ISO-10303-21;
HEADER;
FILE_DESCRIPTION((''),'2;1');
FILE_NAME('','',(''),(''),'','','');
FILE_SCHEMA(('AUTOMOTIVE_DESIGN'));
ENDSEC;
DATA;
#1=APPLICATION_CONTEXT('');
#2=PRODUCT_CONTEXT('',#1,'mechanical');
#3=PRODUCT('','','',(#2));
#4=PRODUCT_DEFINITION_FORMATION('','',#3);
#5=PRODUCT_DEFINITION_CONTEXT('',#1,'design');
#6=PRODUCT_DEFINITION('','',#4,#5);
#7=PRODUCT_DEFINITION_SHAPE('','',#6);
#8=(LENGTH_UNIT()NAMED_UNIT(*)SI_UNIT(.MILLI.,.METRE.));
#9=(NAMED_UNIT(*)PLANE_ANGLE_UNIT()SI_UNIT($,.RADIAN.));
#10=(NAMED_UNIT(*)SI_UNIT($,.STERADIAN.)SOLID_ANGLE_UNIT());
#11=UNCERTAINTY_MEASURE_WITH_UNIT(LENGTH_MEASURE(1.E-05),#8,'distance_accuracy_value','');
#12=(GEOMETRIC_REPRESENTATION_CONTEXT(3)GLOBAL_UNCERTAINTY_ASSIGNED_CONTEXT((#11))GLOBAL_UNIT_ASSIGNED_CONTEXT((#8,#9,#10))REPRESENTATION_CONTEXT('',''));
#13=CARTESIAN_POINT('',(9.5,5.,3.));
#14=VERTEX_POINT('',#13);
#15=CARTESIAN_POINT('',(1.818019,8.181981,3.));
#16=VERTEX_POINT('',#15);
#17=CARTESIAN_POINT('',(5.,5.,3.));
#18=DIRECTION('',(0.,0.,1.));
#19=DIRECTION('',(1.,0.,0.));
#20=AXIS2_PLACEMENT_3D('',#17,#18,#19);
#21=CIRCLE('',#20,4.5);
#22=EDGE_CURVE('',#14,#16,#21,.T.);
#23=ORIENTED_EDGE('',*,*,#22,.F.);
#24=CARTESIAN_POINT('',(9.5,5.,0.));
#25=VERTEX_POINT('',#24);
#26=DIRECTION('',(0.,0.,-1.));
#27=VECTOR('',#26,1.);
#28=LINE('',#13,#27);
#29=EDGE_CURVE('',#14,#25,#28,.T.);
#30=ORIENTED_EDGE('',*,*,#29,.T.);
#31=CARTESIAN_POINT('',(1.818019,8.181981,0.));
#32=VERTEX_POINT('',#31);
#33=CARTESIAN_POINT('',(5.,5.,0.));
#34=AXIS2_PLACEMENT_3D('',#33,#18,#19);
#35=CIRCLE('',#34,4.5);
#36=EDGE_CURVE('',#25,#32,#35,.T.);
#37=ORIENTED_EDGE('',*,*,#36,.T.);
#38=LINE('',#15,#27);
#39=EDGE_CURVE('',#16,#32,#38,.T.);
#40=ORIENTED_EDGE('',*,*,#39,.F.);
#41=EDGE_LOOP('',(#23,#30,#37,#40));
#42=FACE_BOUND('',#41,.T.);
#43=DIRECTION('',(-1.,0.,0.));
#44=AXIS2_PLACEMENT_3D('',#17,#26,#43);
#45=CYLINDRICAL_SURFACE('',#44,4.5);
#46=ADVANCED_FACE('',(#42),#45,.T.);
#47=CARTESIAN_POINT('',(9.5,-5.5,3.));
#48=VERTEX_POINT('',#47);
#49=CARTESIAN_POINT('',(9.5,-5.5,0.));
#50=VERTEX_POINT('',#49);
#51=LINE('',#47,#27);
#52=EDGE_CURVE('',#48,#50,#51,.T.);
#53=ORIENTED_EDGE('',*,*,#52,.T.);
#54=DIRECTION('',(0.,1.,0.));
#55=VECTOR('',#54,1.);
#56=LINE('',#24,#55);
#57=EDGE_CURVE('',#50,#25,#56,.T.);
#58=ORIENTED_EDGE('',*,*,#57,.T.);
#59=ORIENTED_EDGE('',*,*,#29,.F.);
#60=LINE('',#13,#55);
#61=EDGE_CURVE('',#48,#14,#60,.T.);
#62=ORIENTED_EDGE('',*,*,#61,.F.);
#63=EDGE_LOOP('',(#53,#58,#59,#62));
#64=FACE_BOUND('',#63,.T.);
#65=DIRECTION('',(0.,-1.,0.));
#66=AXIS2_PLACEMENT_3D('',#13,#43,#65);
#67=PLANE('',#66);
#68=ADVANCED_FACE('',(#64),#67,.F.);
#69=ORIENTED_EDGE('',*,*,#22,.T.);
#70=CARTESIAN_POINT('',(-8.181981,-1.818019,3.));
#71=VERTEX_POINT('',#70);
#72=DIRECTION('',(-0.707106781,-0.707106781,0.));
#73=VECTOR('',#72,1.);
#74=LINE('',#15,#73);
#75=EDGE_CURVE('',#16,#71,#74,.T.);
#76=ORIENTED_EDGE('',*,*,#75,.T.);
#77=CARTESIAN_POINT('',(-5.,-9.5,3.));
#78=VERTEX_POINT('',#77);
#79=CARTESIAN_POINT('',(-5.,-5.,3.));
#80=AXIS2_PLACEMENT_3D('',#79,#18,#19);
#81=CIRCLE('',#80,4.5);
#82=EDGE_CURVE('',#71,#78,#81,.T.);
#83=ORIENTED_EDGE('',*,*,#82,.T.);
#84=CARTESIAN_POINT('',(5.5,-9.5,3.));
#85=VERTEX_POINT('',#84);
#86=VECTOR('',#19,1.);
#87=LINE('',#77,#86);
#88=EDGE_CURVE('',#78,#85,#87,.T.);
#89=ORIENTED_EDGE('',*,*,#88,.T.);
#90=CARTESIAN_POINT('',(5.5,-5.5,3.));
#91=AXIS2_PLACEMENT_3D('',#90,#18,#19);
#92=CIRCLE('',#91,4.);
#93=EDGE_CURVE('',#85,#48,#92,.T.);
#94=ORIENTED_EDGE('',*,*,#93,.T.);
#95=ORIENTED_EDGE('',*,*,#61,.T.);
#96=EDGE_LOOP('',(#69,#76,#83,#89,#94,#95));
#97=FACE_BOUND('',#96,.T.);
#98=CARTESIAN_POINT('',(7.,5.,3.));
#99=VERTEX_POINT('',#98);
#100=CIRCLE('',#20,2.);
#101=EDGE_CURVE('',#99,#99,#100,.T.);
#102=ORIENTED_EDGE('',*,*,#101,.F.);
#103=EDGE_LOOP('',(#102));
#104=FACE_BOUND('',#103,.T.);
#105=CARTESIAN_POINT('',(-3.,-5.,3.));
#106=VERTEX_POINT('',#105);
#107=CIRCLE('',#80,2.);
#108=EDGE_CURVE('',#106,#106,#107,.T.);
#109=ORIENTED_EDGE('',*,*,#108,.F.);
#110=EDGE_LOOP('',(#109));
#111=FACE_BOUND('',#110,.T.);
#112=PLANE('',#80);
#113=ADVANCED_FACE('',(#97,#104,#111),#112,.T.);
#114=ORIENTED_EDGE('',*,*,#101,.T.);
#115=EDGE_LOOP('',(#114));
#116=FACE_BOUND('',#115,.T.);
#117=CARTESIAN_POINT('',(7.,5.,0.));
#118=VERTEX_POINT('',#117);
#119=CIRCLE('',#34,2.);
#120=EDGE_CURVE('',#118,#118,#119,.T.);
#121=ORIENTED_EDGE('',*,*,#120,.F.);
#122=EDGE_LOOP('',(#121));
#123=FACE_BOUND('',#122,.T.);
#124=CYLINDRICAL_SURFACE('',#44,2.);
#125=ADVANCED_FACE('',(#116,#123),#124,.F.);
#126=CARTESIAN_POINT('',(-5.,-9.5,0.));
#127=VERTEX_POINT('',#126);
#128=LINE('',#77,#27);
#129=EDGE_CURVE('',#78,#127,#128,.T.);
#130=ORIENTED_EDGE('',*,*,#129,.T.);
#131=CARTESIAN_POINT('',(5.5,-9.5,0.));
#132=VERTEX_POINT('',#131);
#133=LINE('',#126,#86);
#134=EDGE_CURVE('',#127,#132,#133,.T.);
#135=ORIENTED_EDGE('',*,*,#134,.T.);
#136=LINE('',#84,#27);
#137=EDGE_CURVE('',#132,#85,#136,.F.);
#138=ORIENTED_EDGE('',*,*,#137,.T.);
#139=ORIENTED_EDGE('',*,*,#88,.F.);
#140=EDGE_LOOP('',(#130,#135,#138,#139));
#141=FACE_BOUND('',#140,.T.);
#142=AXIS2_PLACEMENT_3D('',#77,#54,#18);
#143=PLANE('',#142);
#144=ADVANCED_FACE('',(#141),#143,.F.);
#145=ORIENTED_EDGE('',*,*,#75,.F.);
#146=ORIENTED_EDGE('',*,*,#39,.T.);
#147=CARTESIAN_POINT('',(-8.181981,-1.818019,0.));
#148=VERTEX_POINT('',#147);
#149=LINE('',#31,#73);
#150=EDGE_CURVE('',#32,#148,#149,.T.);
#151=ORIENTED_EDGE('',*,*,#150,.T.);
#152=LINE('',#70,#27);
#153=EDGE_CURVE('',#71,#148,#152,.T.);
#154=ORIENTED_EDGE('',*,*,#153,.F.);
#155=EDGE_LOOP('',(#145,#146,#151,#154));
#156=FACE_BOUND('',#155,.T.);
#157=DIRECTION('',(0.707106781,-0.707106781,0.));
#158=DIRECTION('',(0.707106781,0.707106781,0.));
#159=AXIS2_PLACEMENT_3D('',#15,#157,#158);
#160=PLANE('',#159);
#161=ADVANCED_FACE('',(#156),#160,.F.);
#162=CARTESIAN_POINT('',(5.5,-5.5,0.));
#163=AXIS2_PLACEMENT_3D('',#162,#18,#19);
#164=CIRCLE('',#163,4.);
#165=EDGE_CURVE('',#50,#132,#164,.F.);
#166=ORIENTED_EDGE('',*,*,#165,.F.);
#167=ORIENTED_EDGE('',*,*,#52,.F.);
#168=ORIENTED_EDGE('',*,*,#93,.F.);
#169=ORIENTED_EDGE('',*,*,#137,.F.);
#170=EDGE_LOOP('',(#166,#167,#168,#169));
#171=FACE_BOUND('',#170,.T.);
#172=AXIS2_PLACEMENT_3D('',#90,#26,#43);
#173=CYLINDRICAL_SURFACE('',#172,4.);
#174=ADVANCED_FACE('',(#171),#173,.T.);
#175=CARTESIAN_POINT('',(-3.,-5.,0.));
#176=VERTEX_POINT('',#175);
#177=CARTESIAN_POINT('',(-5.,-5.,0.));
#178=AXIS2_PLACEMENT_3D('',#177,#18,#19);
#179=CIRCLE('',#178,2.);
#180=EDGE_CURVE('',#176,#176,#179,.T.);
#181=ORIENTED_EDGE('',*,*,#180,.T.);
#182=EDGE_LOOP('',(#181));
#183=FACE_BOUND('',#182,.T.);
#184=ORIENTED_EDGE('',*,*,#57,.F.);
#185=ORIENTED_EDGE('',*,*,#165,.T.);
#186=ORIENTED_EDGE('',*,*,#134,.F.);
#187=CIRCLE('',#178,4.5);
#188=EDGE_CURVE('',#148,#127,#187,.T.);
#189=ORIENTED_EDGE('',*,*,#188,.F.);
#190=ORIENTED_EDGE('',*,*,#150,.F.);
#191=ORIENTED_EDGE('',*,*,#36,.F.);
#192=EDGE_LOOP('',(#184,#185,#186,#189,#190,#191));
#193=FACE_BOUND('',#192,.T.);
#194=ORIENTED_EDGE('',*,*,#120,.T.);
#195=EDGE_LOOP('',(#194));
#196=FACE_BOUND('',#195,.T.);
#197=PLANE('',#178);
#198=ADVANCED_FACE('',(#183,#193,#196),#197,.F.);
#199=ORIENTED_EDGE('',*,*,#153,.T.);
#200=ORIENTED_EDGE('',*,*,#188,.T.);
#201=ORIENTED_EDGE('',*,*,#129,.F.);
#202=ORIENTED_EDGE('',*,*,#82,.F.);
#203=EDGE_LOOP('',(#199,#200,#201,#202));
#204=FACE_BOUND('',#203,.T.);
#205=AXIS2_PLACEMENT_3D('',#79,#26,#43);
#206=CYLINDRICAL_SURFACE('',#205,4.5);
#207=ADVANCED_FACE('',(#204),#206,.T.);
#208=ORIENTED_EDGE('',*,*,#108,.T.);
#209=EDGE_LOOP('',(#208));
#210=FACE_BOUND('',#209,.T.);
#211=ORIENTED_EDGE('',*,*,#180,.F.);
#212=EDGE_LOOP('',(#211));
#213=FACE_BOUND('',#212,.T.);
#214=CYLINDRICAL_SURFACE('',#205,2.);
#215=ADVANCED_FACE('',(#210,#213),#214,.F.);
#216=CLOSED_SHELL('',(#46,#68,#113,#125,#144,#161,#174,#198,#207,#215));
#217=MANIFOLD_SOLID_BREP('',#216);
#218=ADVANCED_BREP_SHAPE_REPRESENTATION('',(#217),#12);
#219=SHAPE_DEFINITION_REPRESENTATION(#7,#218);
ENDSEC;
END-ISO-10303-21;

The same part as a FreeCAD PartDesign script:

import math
import FreeCAD as App
import Part
import Sketcher

V = App.Vector
Q = App.Units.Quantity


def edges_at(feature, points):
    """Names of the edges that pass closest to the given points."""
    edges = feature.Shape.Edges
    near = lambda p: min(range(len(edges)), key=lambda i: edges[i].distToShape(Part.Vertex(*p))[0])
    return sorted({f"Edge{near(p) + 1}" for p in points})

doc = App.newDocument("Part")
body = doc.addObject("PartDesign::Body", "Body")

# Sketch on XY plane
sketch1 = body.newObject("Sketcher::SketchObject", "Sketch")
sketch1.AttachmentSupport = (doc.getObject("XY_Plane"), [""])
sketch1.MapMode = "FlatFace"
sketch1.addGeometry([
    Part.LineSegment(V(-5, -9.5, 0), V(9.5, -9.5, 0)),  # 0
    Part.LineSegment(V(9.5, -9.5, 0), V(9.5, 5, 0)),  # 1
    Part.ArcOfCircle(Part.Circle(V(5, 5, 0), V(0, 0, 1), 4.5), math.radians(0), math.radians(135)),  # 2
    Part.LineSegment(V(1.818019, 8.181981, 0), V(-8.181981, -1.818019, 0)),  # 3
    Part.ArcOfCircle(Part.Circle(V(-5, -5, 0), V(0, 0, 1), 4.5), math.radians(135), math.radians(270)),  # 4
    Part.Circle(V(-5, -5, 0), V(0, 0, 1), 2),  # 5
    Part.Circle(V(5, 5, 0), V(0, 0, 1), 2),  # 6
], False)
sketch1.addConstraint([
    Sketcher.Constraint("Coincident", 0, 2, 1, 1),
    Sketcher.Constraint("Tangent", 1, 2, 2, 1),
    Sketcher.Constraint("Tangent", 2, 2, 3, 1),
    Sketcher.Constraint("Tangent", 3, 2, 4, 1),
    Sketcher.Constraint("Tangent", 4, 2, 0, 1),
    Sketcher.Constraint("Horizontal", 0),
    Sketcher.Constraint("Vertical", 1),
    Sketcher.Constraint("Coincident", 5, 3, 4, 3),
    Sketcher.Constraint("Coincident", 6, 3, 2, 3),
    Sketcher.Constraint("Equal", 2, 4),
    Sketcher.Constraint("Equal", 5, 6),
    Sketcher.Constraint("Symmetric", 2, 3, 4, 3, -1, 1),
    Sketcher.Constraint("Equal", 0, 1),
    Sketcher.Constraint("Diameter", 5, Q("4 mm")),
    Sketcher.Constraint("Radius", 2, Q("4.5 mm")),
    Sketcher.Constraint("DistanceX", 0, 1, 0, 2, Q("14.5 mm")),
])
pad1 = body.newObject("PartDesign::Pad", "Pad")
pad1.Profile = sketch1
pad1.Length = 3
doc.recompute()

fillet = body.newObject("PartDesign::Fillet", "Fillet")
fillet.Base = (pad1, edges_at(pad1, [(9.5, -9.5, 1.5)]))
fillet.Radius = 4

doc.recompute()
